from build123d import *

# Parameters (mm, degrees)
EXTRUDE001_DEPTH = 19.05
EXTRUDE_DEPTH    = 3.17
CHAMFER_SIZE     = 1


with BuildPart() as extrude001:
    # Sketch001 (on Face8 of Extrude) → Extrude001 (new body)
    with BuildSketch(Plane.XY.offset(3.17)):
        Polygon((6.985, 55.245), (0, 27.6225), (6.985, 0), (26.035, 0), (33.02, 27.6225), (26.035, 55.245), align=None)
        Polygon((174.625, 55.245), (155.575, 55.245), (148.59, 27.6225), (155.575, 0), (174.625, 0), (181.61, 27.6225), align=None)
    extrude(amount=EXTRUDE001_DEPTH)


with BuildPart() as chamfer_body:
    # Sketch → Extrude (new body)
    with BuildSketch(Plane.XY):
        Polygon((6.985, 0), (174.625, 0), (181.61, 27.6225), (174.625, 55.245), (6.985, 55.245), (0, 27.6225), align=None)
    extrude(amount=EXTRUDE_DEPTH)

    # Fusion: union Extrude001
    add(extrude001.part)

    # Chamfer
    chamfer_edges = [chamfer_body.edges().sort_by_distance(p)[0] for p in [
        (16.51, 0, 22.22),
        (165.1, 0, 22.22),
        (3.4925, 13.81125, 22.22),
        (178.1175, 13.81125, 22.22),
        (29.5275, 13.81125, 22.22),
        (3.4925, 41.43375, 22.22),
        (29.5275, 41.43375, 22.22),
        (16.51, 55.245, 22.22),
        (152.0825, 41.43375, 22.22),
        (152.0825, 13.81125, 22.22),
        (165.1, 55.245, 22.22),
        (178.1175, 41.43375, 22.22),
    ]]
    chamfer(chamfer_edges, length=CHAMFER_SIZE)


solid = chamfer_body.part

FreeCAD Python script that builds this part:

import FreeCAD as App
import Part
import Sketcher

V = App.Vector
Q = App.Units.Quantity


def edges_at(feature, points):
    """Names of the edges that pass closest to the given points."""
    edges = feature.Shape.Edges
    near = lambda p: min(range(len(edges)), key=lambda i: edges[i].distToShape(Part.Vertex(*p))[0])
    return sorted({f"Edge{near(p) + 1}" for p in points})


def add_polygon(sketch, points):
    """Adds a closed chain of lines whose ends are joined by coincident constraints."""
    first, n = sketch.GeometryCount, len(points)
    for a, b in zip(points, points[1:] + points[:1]):
        sketch.addGeometry(Part.LineSegment(App.Vector(*a, 0), App.Vector(*b, 0)), False)
    for i in range(n):
        sketch.addConstraint(Sketcher.Constraint("Coincident", first + i, 2, first + (i + 1) % n, 1))

doc = App.newDocument("Part")
body = doc.addObject("PartDesign::Body", "Body")
body.AllowCompound = True

# Sketch on XY plane
sketch1 = doc.addObject("Sketcher::SketchObject", "Sketch")
body.addObject(sketch1)
sketch1.AttachmentSupport = (doc.XY_Plane, [""])
sketch1.MapMode = "FlatFace"
sketch1.AttachmentOffset = App.Placement(V(0, 0, 3.17), App.Rotation())
add_polygon(sketch1, [(7, 55), (0, 28), (7, 0), (26, 0), (33, 28), (26, 55)])  # lines 0-5
add_polygon(sketch1, [(175, 55), (156, 55), (149, 28), (156, 0), (175, 0), (182, 28)])  # lines 6-11
sketch1.addConstraint(Sketcher.Constraint("Horizontal", 2))
sketch1.addConstraint(Sketcher.Constraint("Horizontal", 5))
sketch1.addConstraint(Sketcher.Constraint("Horizontal", 6))
sketch1.addConstraint(Sketcher.Constraint("Horizontal", 9))
sketch1.addConstraint(Sketcher.Constraint("PointOnObject", 0, 2, -2))
sketch1.addConstraint(Sketcher.Constraint("PointOnObject", 1, 2, -1))
sketch1.addConstraint(Sketcher.Constraint("PointOnObject", 8, 2, -1))
sketch1.addConstraint(Sketcher.Constraint("Parallel", 0, 3))
sketch1.addConstraint(Sketcher.Constraint("Parallel", 1, 4))
sketch1.addConstraint(Sketcher.Constraint("Parallel", 3, 7))
sketch1.addConstraint(Sketcher.Constraint("Parallel", 4, 8))
sketch1.addConstraint(Sketcher.Constraint("Parallel", 7, 10))
sketch1.addConstraint(Sketcher.Constraint("Parallel", 8, 11))
sketch1.addConstraint(Sketcher.Constraint("Horizontal", 0, 2, 3, 2))
sketch1.addConstraint(Sketcher.Constraint("Horizontal", 5, 2, 6, 2))
sketch1.addConstraint(Sketcher.Constraint("Horizontal", 3, 2, 7, 2))
sketch1.addConstraint(Sketcher.Constraint("Horizontal", 7, 2, 10, 2))
sketch1.addConstraint(Sketcher.Constraint("Vertical", 2, 2, 4, 2))
sketch1.addConstraint(Sketcher.Constraint("Vertical", 1, 2, 5, 2))
sketch1.addConstraint(Sketcher.Constraint("Equal", 5, 6))
sketch1.addConstraint(Sketcher.Constraint("DistanceX", 2, 1, 2, 2, Q("0.75 in")))
sketch1.addConstraint(Sketcher.Constraint("DistanceX", -1, 1, 3, 2, Q("1.3 in")))
sketch1.addConstraint(Sketcher.Constraint("DistanceX", 4, 2, 6, 2, Q("5.1 in")))
sketch1.addConstraint(Sketcher.Constraint("DistanceY", -1, 1, 4, 2, Q("2.175 in")))
pad1 = doc.addObject("PartDesign::Pad", "Pad")
body.addObject(pad1)
pad1.Profile = sketch1
pad1.Length = Q("0.75 in")
body2 = doc.addObject("PartDesign::Body", "Body001")

# Sketch on XY plane
sketch2 = doc.addObject("Sketcher::SketchObject", "Sketch001")
body2.addObject(sketch2)
sketch2.AttachmentSupport = (doc.getObject("XY_Plane001"), [""])
sketch2.MapMode = "FlatFace"
add_polygon(sketch2, [(7, 0), (175, 0), (182, 28), (175, 55), (7, 55), (0, 28)])  # lines 0-5
sketch2.addConstraint(Sketcher.Constraint("Horizontal", 0))
sketch2.addConstraint(Sketcher.Constraint("Horizontal", 3))
sketch2.addConstraint(Sketcher.Constraint("PointOnObject", 0, 2, -1))
sketch2.addConstraint(Sketcher.Constraint("PointOnObject", 4, 2, -2))
sketch2.addConstraint(Sketcher.Constraint("Parallel", 1, 4))
sketch2.addConstraint(Sketcher.Constraint("Parallel", 2, 5))
sketch2.addConstraint(Sketcher.Constraint("Horizontal", 1, 2, 4, 2))
sketch2.addConstraint(Sketcher.Constraint("Vertical", 0, 2, 2, 2))
sketch2.addConstraint(Sketcher.Constraint("Vertical", 3, 2, 5, 2))
sketch2.addConstraint(Sketcher.Constraint("DistanceX", 0, 1, 0, 2, Q("6.6 in")))
sketch2.addConstraint(Sketcher.Constraint("DistanceX", -1, 1, 1, 2, Q("7.15 in")))
sketch2.addConstraint(Sketcher.Constraint("DistanceY", -1, 1, 2, 2, Q("2.175 in")))
pad2 = doc.addObject("PartDesign::Pad", "Pad001")
body2.addObject(pad2)
pad2.Profile = sketch2
pad2.Length = 3.17
doc.recompute()

boolean = doc.addObject("PartDesign::Boolean", "Boolean")
body2.addObject(boolean)
boolean.Type = "Fuse"
boolean.addObjects([body])
doc.recompute()

chamfer = doc.addObject("PartDesign::Chamfer", "Chamfer")
body2.addObject(chamfer)
chamfer.Base = (boolean, edges_at(boolean, [
    (16.51, 0, 22.22),
    (165.1, 0, 22.22),
    (3.493, 13.811, 22.22),
    (178.118, 13.811, 22.22),
    (29.527, 13.811, 22.22),
    (3.493, 41.434, 22.22),
    (29.527, 41.434, 22.22),
    (16.51, 55.245, 22.22),
    (152.083, 41.434, 22.22),
    (152.083, 13.811, 22.22),
    (165.1, 55.245, 22.22),
    (178.118, 41.434, 22.22),
]))
chamfer.Size = 1

doc.recompute()
